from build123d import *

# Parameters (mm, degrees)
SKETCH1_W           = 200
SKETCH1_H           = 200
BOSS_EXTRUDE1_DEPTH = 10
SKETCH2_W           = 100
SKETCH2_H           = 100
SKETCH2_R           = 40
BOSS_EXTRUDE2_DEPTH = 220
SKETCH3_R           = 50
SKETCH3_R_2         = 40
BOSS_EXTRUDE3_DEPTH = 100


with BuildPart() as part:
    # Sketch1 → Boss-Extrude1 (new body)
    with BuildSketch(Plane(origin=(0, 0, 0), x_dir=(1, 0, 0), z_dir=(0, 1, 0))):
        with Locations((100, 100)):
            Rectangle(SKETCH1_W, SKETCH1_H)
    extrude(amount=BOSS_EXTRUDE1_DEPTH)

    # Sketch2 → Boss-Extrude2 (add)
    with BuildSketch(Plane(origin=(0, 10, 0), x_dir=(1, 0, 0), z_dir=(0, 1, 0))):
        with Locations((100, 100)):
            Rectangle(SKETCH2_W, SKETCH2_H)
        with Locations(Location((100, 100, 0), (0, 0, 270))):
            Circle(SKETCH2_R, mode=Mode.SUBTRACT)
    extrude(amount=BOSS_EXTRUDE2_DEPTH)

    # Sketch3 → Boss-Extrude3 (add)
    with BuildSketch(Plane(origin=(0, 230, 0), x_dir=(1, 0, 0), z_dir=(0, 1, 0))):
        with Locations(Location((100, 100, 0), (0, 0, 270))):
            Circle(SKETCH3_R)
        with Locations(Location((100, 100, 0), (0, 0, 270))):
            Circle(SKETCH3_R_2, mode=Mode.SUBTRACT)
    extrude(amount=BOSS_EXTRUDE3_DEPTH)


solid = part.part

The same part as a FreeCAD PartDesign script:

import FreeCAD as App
import Part
import Sketcher
Q = App.Units.Quantity

doc = App.newDocument("Part")
body = doc.addObject("PartDesign::Body", "Body")

sketch1 = body.newObject("Sketcher::SketchObject", "Sketch")
sketch1.AttachmentSupport = (doc.getObject("XZ_Plane"), [""])
sketch1.MapMode = "FlatFace"
sketch1.addGeometry([
    Part.LineSegment(App.Vector(0, -200, 0), App.Vector(0, 0, 0)),
    Part.LineSegment(App.Vector(0, 0, 0), App.Vector(200, 0, 0)),
    Part.LineSegment(App.Vector(200, 0, 0), App.Vector(200, -200, 0)),
    Part.LineSegment(App.Vector(200, -200, 0), App.Vector(0, -200, 0)),
], False)
sketch1.addConstraint([
    Sketcher.Constraint("Coincident", 0, 2, 1, 1),
    Sketcher.Constraint("Coincident", 1, 2, 2, 1),
    Sketcher.Constraint("Coincident", 2, 2, 3, 1),
    Sketcher.Constraint("Coincident", 3, 2, 0, 1),
    Sketcher.Constraint("Vertical", 0),
    Sketcher.Constraint("Horizontal", 1),
    Sketcher.Constraint("Vertical", 2),
    Sketcher.Constraint("Horizontal", 3),
    Sketcher.Constraint("Coincident", 0, 2, -1, 1),
    Sketcher.Constraint("Equal", 3, 0),
    Sketcher.Constraint("DistanceX", 1, 1, 1, 2, Q("200 mm")),
])
pad1 = body.newObject("PartDesign::Pad", "Pad")
pad1.Profile = sketch1
pad1.Length = 10
pad1.Reversed = True

sketch2 = body.newObject("Sketcher::SketchObject", "Sketch001")
sketch2.AttachmentSupport = (doc.getObject("XZ_Plane"), [""])
sketch2.MapMode = "FlatFace"
sketch2.AttachmentOffset = App.Placement(App.Vector(0, 0, -10), App.Rotation())
sketch2.addGeometry([
    Part.LineSegment(App.Vector(50, -150, 0), App.Vector(50, -50, 0)),
    Part.LineSegment(App.Vector(50, -50, 0), App.Vector(150, -50, 0)),
    Part.LineSegment(App.Vector(150, -50, 0), App.Vector(150, -150, 0)),
    Part.LineSegment(App.Vector(150, -150, 0), App.Vector(50, -150, 0)),
    Part.Circle(App.Vector(100, -100, 0), App.Vector(0, 0, 1), 40),
], False)
sketch2.addConstraint([
    Sketcher.Constraint("Coincident", 0, 2, 1, 1),
    Sketcher.Constraint("Coincident", 1, 2, 2, 1),
    Sketcher.Constraint("Coincident", 2, 2, 3, 1),
    Sketcher.Constraint("Coincident", 3, 2, 0, 1),
    Sketcher.Constraint("Vertical", 0),
    Sketcher.Constraint("Horizontal", 1),
    Sketcher.Constraint("Vertical", 2),
    Sketcher.Constraint("Horizontal", 3),
    Sketcher.Constraint("Equal", 3, 0),
    Sketcher.Constraint("Diameter", 4, Q("80 mm")),
    Sketcher.Constraint("DistanceX", 1, 1, 1, 2, Q("100 mm")),
    Sketcher.Constraint("DistanceX", -1, 1, 4, 3, Q("100 mm")),
    Sketcher.Constraint("DistanceY", 4, 3, -1, 1, Q("100 mm")),
    Sketcher.Constraint("DistanceX", -1, 1, 0, 2, Q("50 mm")),
    Sketcher.Constraint("DistanceY", 0, 2, -1, 1, Q("50 mm")),
])
pad2 = body.newObject("PartDesign::Pad", "Pad001")
pad2.Profile = sketch2
pad2.Length = 220
pad2.Reversed = True

sketch3 = body.newObject("Sketcher::SketchObject", "Sketch002")
sketch3.AttachmentSupport = (doc.getObject("XZ_Plane"), [""])
sketch3.MapMode = "FlatFace"
sketch3.AttachmentOffset = App.Placement(App.Vector(0, 0, -230), App.Rotation())
sketch3.addGeometry([
    Part.Circle(App.Vector(100, -100, 0), App.Vector(0, 0, 1), 50),
    Part.Circle(App.Vector(100, -100, 0), App.Vector(0, 0, 1), 40),
], False)
sketch3.addConstraint([
    Sketcher.Constraint("Coincident", 1, 3, 0, 3),
    Sketcher.Constraint("Diameter", 0, Q("100 mm")),
    Sketcher.Constraint("Diameter", 1, Q("80 mm")),
    Sketcher.Constraint("DistanceX", -1, 1, 0, 3, Q("100 mm")),
    Sketcher.Constraint("DistanceY", 0, 3, -1, 1, Q("100 mm")),
])
pad3 = body.newObject("PartDesign::Pad", "Pad002")
pad3.Profile = sketch3
pad3.Length = 100
pad3.Reversed = True

doc.recompute()
